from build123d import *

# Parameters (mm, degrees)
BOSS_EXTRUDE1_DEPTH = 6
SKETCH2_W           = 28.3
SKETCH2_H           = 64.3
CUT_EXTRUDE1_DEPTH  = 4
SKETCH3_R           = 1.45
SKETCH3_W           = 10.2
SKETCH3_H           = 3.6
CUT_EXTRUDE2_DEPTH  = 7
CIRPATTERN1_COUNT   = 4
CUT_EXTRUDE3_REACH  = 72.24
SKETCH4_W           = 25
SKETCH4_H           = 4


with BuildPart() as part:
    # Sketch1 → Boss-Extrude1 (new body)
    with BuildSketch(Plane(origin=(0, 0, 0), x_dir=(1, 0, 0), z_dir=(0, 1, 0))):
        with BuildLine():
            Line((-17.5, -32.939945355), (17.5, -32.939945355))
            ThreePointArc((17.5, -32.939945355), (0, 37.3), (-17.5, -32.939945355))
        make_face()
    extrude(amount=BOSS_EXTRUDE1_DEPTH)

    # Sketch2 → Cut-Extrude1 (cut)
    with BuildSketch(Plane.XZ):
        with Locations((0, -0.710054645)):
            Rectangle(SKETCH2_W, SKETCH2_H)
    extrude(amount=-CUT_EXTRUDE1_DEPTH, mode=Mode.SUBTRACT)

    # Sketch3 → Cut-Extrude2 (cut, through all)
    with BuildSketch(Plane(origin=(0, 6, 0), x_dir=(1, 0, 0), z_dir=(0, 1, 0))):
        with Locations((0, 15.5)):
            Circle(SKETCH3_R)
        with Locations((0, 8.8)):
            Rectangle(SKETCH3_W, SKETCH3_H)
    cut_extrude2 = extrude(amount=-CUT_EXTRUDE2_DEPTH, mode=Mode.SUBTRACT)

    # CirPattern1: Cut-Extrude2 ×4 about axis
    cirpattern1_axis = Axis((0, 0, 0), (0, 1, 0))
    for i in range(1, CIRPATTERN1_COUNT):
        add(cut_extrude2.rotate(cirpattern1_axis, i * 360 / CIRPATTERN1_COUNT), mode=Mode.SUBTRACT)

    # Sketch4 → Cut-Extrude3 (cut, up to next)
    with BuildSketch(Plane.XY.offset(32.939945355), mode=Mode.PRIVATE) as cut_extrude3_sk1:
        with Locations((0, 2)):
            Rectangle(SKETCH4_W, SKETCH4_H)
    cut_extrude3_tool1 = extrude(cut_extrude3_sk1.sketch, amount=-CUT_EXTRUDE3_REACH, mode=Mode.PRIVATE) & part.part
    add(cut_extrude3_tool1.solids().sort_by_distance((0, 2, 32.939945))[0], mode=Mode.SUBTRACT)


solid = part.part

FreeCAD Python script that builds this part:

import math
import FreeCAD as App
import Part
import Sketcher
from FreeCAD import Vector
Q = App.Units.Quantity


def add_polygon(sketch, points):
    """Adds a closed chain of lines whose ends are joined by coincident constraints."""
    first, n = sketch.GeometryCount, len(points)
    for a, b in zip(points, points[1:] + points[:1]):
        sketch.addGeometry(Part.LineSegment(App.Vector(*a, 0), App.Vector(*b, 0)), False)
    for i in range(n):
        sketch.addConstraint(Sketcher.Constraint("Coincident", first + i, 2, first + (i + 1) % n, 1))

doc = App.newDocument("Part")
params = doc.addObject("Spreadsheet::Sheet", "Params")
for row, (alias, value) in enumerate([
    ("sketch1_radius", "37.3 mm"),
    ("sketch1_width", "35 mm"),
    ("pad1_length", "6 mm"),
    ("sketch2_width", "28.3 mm"),
    ("sketch2_height", "64.3 mm"),
    ("pocket1_length", "4 mm"),
    ("sketch3_diameter", "2.9 mm"),
    ("sketch3_width", "10.2 mm"),
    ("sketch3_height", "3.6 mm"),
    ("sketch4_width", "25 mm"),
    ("sketch4_height", "4 mm"),
], start=1):
    params.set(f"A{row}", alias)
    params.set(f"B{row}", "=" + value)
    params.setAlias(f"B{row}", alias)

body = doc.addObject("PartDesign::Body", "Body")

sketch1 = body.newObject("Sketcher::SketchObject", "Sketch")
sketch1.AttachmentSupport = (doc.getObject("XZ_Plane"), [""])
sketch1.MapMode = "FlatFace"
sketch1.addGeometry([
    Part.LineSegment(Vector(-18, 33, 0), Vector(18, 33, 0)),
    Part.ArcOfCircle(Part.Circle(Vector(0, 0, 0), Vector(0, 0, 1), 37), math.radians(118), math.radians(422)),
], False)
sketch1.addConstraint([
    Sketcher.Constraint("Coincident", 0, 1, 1, 1),
    Sketcher.Constraint("Coincident", 1, 2, 0, 2),
    Sketcher.Constraint("Horizontal", 0),
    Sketcher.Constraint("Coincident", 1, 3, -1, 1),
    Sketcher.Constraint("Radius", 1, Q("37.3 mm")),
    Sketcher.Constraint("DistanceX", 0, 1, 0, 2, Q("35 mm")),
])
sketch1.setExpression("Constraints[4]", "Params.sketch1_radius")
sketch1.setExpression("Constraints[5]", "Params.sketch1_width")
pad1 = body.newObject("PartDesign::Pad", "Pad")
pad1.Profile = sketch1
pad1.setExpression("Length", "Params.pad1_length")
pad1.Reversed = True

sketch2 = body.newObject("Sketcher::SketchObject", "Sketch001")
sketch2.AttachmentSupport = (doc.getObject("XZ_Plane"), [""])
sketch2.MapMode = "FlatFace"
add_polygon(sketch2, [(-14, 31), (-14, -33), (14, -33), (14, 31)])
sketch2.addConstraint([
    Sketcher.Constraint("Vertical", 0),
    Sketcher.Constraint("Horizontal", 1),
    Sketcher.Constraint("Vertical", 2),
    Sketcher.Constraint("Horizontal", 3),
    Sketcher.Constraint("DistanceX", 1, 1, 1, 2, Q("28.3 mm")),
    Sketcher.Constraint("DistanceY", 0, 2, 0, 1, Q("64.3 mm")),
    Sketcher.Constraint("DistanceX", 0, 2, -1, 1, Q("14.15 mm")),
    Sketcher.Constraint("DistanceY", 0, 2, -1, 1, Q("32.860055 mm")),
])
sketch2.setExpression("Constraints[8]", "Params.sketch2_width")
sketch2.setExpression("Constraints[9]", "Params.sketch2_height")
pocket1 = body.newObject("PartDesign::Pocket", "Pocket")
pocket1.Profile = sketch2
pocket1.setExpression("Length", "Params.pocket1_length")

sketch3 = body.newObject("Sketcher::SketchObject", "Sketch002")
sketch3.AttachmentSupport = (doc.getObject("XZ_Plane"), [""])
sketch3.MapMode = "FlatFace"
sketch3.AttachmentOffset = App.Placement(Vector(0, 0, -6), App.Rotation())
sketch3.addGeometry(Part.Circle(Vector(0, -15.5, 0), Vector(0, 0, 1), 1.4), False)
add_polygon(sketch3, [(-5.1, -10.6), (-5.1, -7), (5.1, -7), (5.1, -10.6)])
sketch3.addConstraint([
    Sketcher.Constraint("Vertical", 1),
    Sketcher.Constraint("Horizontal", 2),
    Sketcher.Constraint("Vertical", 3),
    Sketcher.Constraint("Horizontal", 4),
    Sketcher.Constraint("PointOnObject", 0, 3, -2),
    Sketcher.Constraint("Diameter", 0, Q("2.9 mm")),
    Sketcher.Constraint("DistanceX", 2, 1, 2, 2, Q("10.2 mm")),
    Sketcher.Constraint("DistanceY", 1, 1, 1, 2, Q("3.6 mm")),
    Sketcher.Constraint("DistanceY", 1, 2, -1, 1, Q("7 mm")),
    Sketcher.Constraint("DistanceY", 0, 3, -1, 1, Q("15.5 mm")),
    Sketcher.Constraint("DistanceX", 1, 2, -1, 1, Q("5.1 mm")),
])
sketch3.setExpression("Constraints[9]", "Params.sketch3_diameter")
sketch3.setExpression("Constraints[10]", "Params.sketch3_width")
sketch3.setExpression("Constraints[11]", "Params.sketch3_height")
pocket2 = body.newObject("PartDesign::Pocket", "Pocket001")
pocket2.Profile = sketch3
pocket2.Type = "ThroughAll"
pocket2.Reversed = True
doc.recompute()

polarpattern = body.newObject("PartDesign::PolarPattern", "PolarPattern")
polarpattern.Originals = [pocket2]
polarpattern.Axis = (doc.getObject("Y_Axis"), [""])
polarpattern.Angle = 360
polarpattern.Occurrences = 4
body.Tip = polarpattern

sketch4 = body.newObject("Sketcher::SketchObject", "Sketch003")
sketch4.AttachmentSupport = (doc.getObject("XY_Plane"), [""])
sketch4.MapMode = "FlatFace"
sketch4.AttachmentOffset = App.Placement(Vector(0, 0, 32.939945), App.Rotation())
add_polygon(sketch4, [(-12.5, 4), (-12.5, 0), (12.5, 0), (12.5, 4)])
sketch4.addConstraint([
    Sketcher.Constraint("Vertical", 0),
    Sketcher.Constraint("Horizontal", 1),
    Sketcher.Constraint("Vertical", 2),
    Sketcher.Constraint("Horizontal", 3),
    Sketcher.Constraint("Symmetric", 0, 2, 1, 2, -1, 1),
    Sketcher.Constraint("DistanceX", 1, 1, 1, 2, Q("25 mm")),
    Sketcher.Constraint("DistanceY", 0, 2, 0, 1, Q("4 mm")),
])
sketch4.setExpression("Constraints[9]", "Params.sketch4_width")
sketch4.setExpression("Constraints[10]", "Params.sketch4_height")
pocket3 = body.newObject("PartDesign::Pocket", "Pocket002")
pocket3.Profile = sketch4
pocket3.Type = "UpToFirst"

doc.recompute()
